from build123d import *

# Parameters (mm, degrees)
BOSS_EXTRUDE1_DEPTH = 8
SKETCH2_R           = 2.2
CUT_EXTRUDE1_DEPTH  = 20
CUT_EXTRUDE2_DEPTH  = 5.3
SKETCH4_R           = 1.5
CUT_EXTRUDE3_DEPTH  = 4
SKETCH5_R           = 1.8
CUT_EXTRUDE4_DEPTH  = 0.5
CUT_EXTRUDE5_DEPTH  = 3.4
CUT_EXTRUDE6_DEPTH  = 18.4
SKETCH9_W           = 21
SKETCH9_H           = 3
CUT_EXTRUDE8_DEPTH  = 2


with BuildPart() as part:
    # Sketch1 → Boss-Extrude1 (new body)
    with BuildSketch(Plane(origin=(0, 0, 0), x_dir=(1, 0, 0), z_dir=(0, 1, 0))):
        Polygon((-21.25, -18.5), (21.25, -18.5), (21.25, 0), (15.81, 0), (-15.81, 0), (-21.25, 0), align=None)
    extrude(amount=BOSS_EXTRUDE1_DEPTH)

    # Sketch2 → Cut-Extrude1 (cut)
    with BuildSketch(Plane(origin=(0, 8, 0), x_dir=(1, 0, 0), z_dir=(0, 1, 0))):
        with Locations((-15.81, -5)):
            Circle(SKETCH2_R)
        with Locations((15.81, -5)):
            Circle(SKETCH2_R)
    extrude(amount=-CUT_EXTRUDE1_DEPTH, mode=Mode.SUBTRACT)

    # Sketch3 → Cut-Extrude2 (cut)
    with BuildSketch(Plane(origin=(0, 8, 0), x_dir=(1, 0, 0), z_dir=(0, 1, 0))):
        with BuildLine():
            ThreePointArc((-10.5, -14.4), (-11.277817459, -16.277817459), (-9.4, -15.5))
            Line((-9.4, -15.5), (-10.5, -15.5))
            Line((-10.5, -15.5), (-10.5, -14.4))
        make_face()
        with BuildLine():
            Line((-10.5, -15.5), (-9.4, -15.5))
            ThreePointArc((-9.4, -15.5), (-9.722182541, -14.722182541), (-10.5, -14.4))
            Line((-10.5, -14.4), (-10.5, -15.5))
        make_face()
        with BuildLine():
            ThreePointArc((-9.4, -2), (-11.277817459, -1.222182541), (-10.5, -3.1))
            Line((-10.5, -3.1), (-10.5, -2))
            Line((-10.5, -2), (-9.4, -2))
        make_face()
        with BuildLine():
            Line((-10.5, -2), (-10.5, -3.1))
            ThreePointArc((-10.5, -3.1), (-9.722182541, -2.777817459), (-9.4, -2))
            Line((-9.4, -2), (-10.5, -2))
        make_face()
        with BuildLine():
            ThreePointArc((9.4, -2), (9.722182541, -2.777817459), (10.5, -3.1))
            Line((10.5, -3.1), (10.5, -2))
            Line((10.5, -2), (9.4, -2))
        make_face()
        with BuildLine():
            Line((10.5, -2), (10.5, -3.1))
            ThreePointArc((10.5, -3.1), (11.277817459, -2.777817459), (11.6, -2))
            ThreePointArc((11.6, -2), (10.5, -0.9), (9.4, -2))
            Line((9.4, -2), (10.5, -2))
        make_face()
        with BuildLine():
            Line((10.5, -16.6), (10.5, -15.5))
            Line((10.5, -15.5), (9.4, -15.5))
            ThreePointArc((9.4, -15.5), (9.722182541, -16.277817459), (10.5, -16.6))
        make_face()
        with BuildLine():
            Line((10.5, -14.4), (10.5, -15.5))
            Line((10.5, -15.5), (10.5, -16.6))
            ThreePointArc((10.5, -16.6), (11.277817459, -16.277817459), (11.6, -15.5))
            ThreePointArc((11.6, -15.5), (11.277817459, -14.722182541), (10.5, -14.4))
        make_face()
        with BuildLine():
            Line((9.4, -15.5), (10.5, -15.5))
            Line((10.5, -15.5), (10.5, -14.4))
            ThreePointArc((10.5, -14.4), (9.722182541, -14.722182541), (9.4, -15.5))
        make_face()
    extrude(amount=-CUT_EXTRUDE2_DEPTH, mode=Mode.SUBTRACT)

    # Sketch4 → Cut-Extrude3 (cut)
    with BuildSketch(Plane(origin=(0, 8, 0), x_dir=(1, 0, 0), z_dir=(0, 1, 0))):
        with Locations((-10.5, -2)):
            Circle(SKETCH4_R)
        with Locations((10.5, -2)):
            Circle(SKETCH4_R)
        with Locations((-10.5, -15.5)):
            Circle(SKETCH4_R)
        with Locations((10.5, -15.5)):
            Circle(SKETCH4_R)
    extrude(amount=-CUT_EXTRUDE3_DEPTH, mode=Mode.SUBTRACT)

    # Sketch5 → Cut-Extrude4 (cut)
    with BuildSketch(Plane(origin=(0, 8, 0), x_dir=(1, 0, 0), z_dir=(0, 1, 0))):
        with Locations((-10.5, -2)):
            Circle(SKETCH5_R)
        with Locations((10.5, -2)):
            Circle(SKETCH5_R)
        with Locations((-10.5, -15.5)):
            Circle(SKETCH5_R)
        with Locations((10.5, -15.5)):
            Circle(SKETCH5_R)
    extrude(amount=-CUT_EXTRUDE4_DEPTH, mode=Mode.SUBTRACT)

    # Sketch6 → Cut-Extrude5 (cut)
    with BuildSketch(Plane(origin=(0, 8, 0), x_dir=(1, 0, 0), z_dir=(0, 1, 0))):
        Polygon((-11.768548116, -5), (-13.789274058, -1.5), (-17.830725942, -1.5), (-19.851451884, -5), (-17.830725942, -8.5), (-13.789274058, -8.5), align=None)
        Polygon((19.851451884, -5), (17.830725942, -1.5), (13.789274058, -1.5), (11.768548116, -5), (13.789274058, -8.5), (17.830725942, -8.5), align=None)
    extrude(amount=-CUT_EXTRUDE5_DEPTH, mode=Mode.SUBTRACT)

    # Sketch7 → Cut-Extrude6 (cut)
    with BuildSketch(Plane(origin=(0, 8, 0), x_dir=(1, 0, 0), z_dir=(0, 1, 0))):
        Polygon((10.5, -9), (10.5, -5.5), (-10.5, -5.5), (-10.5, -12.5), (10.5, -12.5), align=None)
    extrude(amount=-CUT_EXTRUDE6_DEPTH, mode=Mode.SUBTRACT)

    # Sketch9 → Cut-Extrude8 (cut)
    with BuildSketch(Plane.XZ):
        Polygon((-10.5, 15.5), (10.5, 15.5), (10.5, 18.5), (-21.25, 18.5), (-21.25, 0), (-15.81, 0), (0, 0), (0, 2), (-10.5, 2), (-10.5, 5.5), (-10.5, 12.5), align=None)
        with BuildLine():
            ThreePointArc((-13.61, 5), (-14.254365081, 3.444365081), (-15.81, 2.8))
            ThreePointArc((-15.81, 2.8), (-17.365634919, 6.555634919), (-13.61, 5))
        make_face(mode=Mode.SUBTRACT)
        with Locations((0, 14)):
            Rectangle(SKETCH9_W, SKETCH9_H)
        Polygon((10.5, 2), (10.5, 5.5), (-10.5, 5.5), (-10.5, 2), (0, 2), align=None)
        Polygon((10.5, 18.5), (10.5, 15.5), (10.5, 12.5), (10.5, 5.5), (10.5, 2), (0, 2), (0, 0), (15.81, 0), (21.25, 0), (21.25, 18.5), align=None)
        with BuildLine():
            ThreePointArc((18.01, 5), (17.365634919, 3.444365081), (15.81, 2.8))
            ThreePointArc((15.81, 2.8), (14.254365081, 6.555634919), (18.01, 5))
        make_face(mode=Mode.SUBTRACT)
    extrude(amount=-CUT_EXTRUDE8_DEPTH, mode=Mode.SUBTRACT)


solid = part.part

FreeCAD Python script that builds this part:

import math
import FreeCAD as App
import Part
import Sketcher

V = App.Vector
Q = App.Units.Quantity


def add_polygon(sketch, points):
    """Adds a closed chain of lines whose ends are joined by coincident constraints."""
    first, n = sketch.GeometryCount, len(points)
    for a, b in zip(points, points[1:] + points[:1]):
        sketch.addGeometry(Part.LineSegment(App.Vector(*a, 0), App.Vector(*b, 0)), False)
    for i in range(n):
        sketch.addConstraint(Sketcher.Constraint("Coincident", first + i, 2, first + (i + 1) % n, 1))

doc = App.newDocument("Part")
params = doc.addObject("Spreadsheet::Sheet", "Params")
for row, (alias, value) in enumerate([
    ("sketch1_width", "42.5 mm"),
    ("sketch1_height", "18.5 mm"),
    ("pad1_length", "8 mm"),
    ("sketch2_diameter", "4.4 mm"),
    ("pocket1_length", "20 mm"),
    ("sketch3_radius", "1.1 mm"),
    ("pocket2_length", "5.3 mm"),
    ("sketch4_diameter", "3 mm"),
    ("pocket3_length", "4 mm"),
    ("sketch5_diameter", "3.6 mm"),
    ("pocket4_length", "0.5 mm"),
    ("pocket5_length", "3.4 mm"),
    ("sketch7_width", "21 mm"),
    ("sketch7_height", "7 mm"),
    ("pocket6_length", "18.4 mm"),
    ("sketch8_radius", "2.2 mm"),
    ("sketch8_width", "21 mm"),
    ("sketch8_height", "7 mm"),
    ("sketch8_width2", "42.5 mm"),
    ("sketch8_height2", "18.5 mm"),
    ("pocket7_length", "2 mm"),
], start=1):
    params.set(f"A{row}", alias)
    params.set(f"B{row}", "=" + value)
    params.setAlias(f"B{row}", alias)

body = doc.addObject("PartDesign::Body", "Body")

sketch1 = body.newObject("Sketcher::SketchObject", "Sketch")
sketch1.AttachmentSupport = (doc.getObject("XZ_Plane"), [""])
sketch1.MapMode = "FlatFace"
add_polygon(sketch1, [(-21.25, 18.5), (21.25, 18.5), (21.25, 0), (-21.25, 0)])
sketch1.addConstraint([
    Sketcher.Constraint("Horizontal", 0),
    Sketcher.Constraint("Vertical", 1),
    Sketcher.Constraint("Horizontal", 2),
    Sketcher.Constraint("Vertical", 3),
    Sketcher.Constraint("Symmetric", 1, 2, 2, 2, -1, 1),
    Sketcher.Constraint("DistanceX", 0, 1, 0, 2, Q("42.5 mm")),
    Sketcher.Constraint("DistanceY", 1, 2, 1, 1, Q("18.5 mm")),
])
sketch1.setExpression("Constraints[9]", "Params.sketch1_width")
sketch1.setExpression("Constraints[10]", "Params.sketch1_height")
pad1 = body.newObject("PartDesign::Pad", "Pad")
pad1.Profile = sketch1
pad1.setExpression("Length", "Params.pad1_length")
pad1.Reversed = True

sketch2 = body.newObject("Sketcher::SketchObject", "Sketch001")
sketch2.AttachmentSupport = (doc.getObject("XZ_Plane"), [""])
sketch2.MapMode = "FlatFace"
sketch2.AttachmentOffset = App.Placement(V(0, 0, -8), App.Rotation())
sketch2.addGeometry([
    Part.Circle(V(-15.81, 5, 0), V(0, 0, 1), 2.2),
    Part.Circle(V(15.81, 5, 0), V(0, 0, 1), 2.2),
], False)
sketch2.addConstraint([
    Sketcher.Constraint("Equal", 0, 1),
    Sketcher.Constraint("Symmetric", 0, 3, 1, 3, -2),
    Sketcher.Constraint("Diameter", 0, Q("4.4 mm")),
    Sketcher.Constraint("DistanceY", -1, 1, 0, 3, Q("5 mm")),
    Sketcher.Constraint("DistanceX", 0, 3, -1, 1, Q("15.81 mm")),
])
sketch2.setExpression("Constraints[2]", "Params.sketch2_diameter")
pocket1 = body.newObject("PartDesign::Pocket", "Pocket")
pocket1.Profile = sketch2
pocket1.setExpression("Length", "Params.pocket1_length")
pocket1.Reversed = True

sketch3 = body.newObject("Sketcher::SketchObject", "Sketch002")
sketch3.AttachmentSupport = (doc.getObject("XZ_Plane"), [""])
sketch3.MapMode = "FlatFace"
sketch3.AttachmentOffset = App.Placement(V(0, 0, -8), App.Rotation())
sketch3.addGeometry([
    Part.ArcOfCircle(Part.Circle(V(-10.5, 15.5, 0), V(0, 0, 1), 1.1), math.radians(0), math.radians(270)),
    Part.ArcOfCircle(Part.Circle(V(-10.5, 15.5, 0), V(0, 0, 1), 1.1), math.radians(-90), math.radians(0)),
    Part.ArcOfCircle(Part.Circle(V(-10.5, 2, 0), V(0, 0, 1), 1.1), math.radians(90), math.radians(360)),
    Part.ArcOfCircle(Part.Circle(V(-10.5, 2, 0), V(0, 0, 1), 1.1), math.radians(0), math.radians(90)),
    Part.ArcOfCircle(Part.Circle(V(10.5, 2, 0), V(0, 0, 1), 1.1), math.radians(90), math.radians(180)),
    Part.ArcOfCircle(Part.Circle(V(10.5, 2, 0), V(0, 0, 1), 1.1), math.radians(0), math.radians(90)),
    Part.ArcOfCircle(Part.Circle(V(10.5, 2, 0), V(0, 0, 1), 1.1), math.radians(180), math.radians(360)),
    Part.ArcOfCircle(Part.Circle(V(10.5, 15.5, 0), V(0, 0, 1), 1.1), math.radians(90), math.radians(180)),
    Part.ArcOfCircle(Part.Circle(V(10.5, 15.5, 0), V(0, 0, 1), 1.1), math.radians(0), math.radians(90)),
    Part.ArcOfCircle(Part.Circle(V(10.5, 15.5, 0), V(0, 0, 1), 1.1), math.radians(-90), math.radians(0)),
    Part.ArcOfCircle(Part.Circle(V(10.5, 15.5, 0), V(0, 0, 1), 1.1), math.radians(-180), math.radians(-90)),
], False)
sketch3.addConstraint([
    Sketcher.Constraint("Tangent", 0, 1, 1, 2),
    Sketcher.Constraint("Coincident", 1, 1, 0, 2),
    Sketcher.Constraint("Tangent", 2, 1, 3, 2),
    Sketcher.Constraint("Coincident", 3, 1, 2, 2),
    Sketcher.Constraint("Tangent", 4, 1, 5, 2),
    Sketcher.Constraint("Tangent", 5, 1, 6, 2),
    Sketcher.Constraint("Tangent", 6, 1, 4, 2),
    Sketcher.Constraint("Tangent", 7, 1, 8, 2),
    Sketcher.Constraint("Tangent", 8, 1, 9, 2),
    Sketcher.Constraint("Tangent", 9, 1, 10, 2),
    Sketcher.Constraint("Tangent", 10, 1, 7, 2),
    Sketcher.Constraint("Equal", 1, 2),
    Sketcher.Constraint("Equal", 3, 4),
    Sketcher.Constraint("Equal", 6, 7),
    Sketcher.Constraint("Equal", 7, 8),
    Sketcher.Constraint("Symmetric", 2, 3, 4, 3, -2),
    Sketcher.Constraint("Symmetric", 0, 3, 7, 3, -2),
    Sketcher.Constraint("Horizontal", 10, 3, 0, 1),
    Sketcher.Constraint("Horizontal", 6, 3, 3, 1),
    Sketcher.Constraint("Horizontal", 3, 1, 5, 1),
    Sketcher.Constraint("Horizontal", 5, 1, 6, 1),
    Sketcher.Constraint("Horizontal", 0, 1, 8, 1),
    Sketcher.Constraint("Horizontal", 8, 1, 10, 1),
    Sketcher.Constraint("Vertical", 1, 3, 2, 3),
    Sketcher.Constraint("Vertical", 3, 3, 1, 1),
    Sketcher.Constraint("Vertical", 1, 1, 2, 1),
    Sketcher.Constraint("Vertical", 10, 3, 4, 1),
    Sketcher.Constraint("Vertical", 4, 1, 7, 1),
    Sketcher.Constraint("Vertical", 7, 1, 9, 1),
    Sketcher.Constraint("Radius", 0, Q("1.1 mm")),
    Sketcher.Constraint("DistanceY", -1, 1, 2, 3, Q("2 mm")),
    Sketcher.Constraint("DistanceX", 2, 3, 4, 3, Q("21 mm")),
    Sketcher.Constraint("DistanceY", -1, 1, 0, 3, Q("15.5 mm")),
])
sketch3.setExpression("Constraints[29]", "Params.sketch3_radius")
pocket2 = body.newObject("PartDesign::Pocket", "Pocket001")
pocket2.Profile = sketch3
pocket2.setExpression("Length", "Params.pocket2_length")
pocket2.Reversed = True

sketch4 = body.newObject("Sketcher::SketchObject", "Sketch003")
sketch4.AttachmentSupport = (doc.getObject("XZ_Plane"), [""])
sketch4.MapMode = "FlatFace"
sketch4.AttachmentOffset = App.Placement(V(0, 0, -8), App.Rotation())
sketch4.addGeometry([
    Part.Circle(V(-10.5, 2, 0), V(0, 0, 1), 1.5),
    Part.Circle(V(10.5, 2, 0), V(0, 0, 1), 1.5),
    Part.Circle(V(-10.5, 15.5, 0), V(0, 0, 1), 1.5),
    Part.Circle(V(10.5, 15.5, 0), V(0, 0, 1), 1.5),
], False)
sketch4.addConstraint([
    Sketcher.Constraint("Equal", 0, 1),
    Sketcher.Constraint("Equal", 1, 2),
    Sketcher.Constraint("Equal", 2, 3),
    Sketcher.Constraint("Symmetric", 0, 3, 1, 3, -2),
    Sketcher.Constraint("Symmetric", 2, 3, 3, 3, -2),
    Sketcher.Constraint("Vertical", 0, 3, 2, 3),
    Sketcher.Constraint("Diameter", 0, Q("3 mm")),
    Sketcher.Constraint("DistanceY", -1, 1, 0, 3, Q("2 mm")),
    Sketcher.Constraint("DistanceX", 0, 3, 1, 3, Q("21 mm")),
    Sketcher.Constraint("DistanceY", -1, 1, 2, 3, Q("15.5 mm")),
])
sketch4.setExpression("Constraints[6]", "Params.sketch4_diameter")
pocket3 = body.newObject("PartDesign::Pocket", "Pocket002")
pocket3.Profile = sketch4
pocket3.setExpression("Length", "Params.pocket3_length")
pocket3.Reversed = True

sketch5 = body.newObject("Sketcher::SketchObject", "Sketch004")
sketch5.AttachmentSupport = (doc.getObject("XZ_Plane"), [""])
sketch5.MapMode = "FlatFace"
sketch5.AttachmentOffset = App.Placement(V(0, 0, -8), App.Rotation())
sketch5.addGeometry([
    Part.Circle(V(-10.5, 2, 0), V(0, 0, 1), 1.8),
    Part.Circle(V(10.5, 2, 0), V(0, 0, 1), 1.8),
    Part.Circle(V(-10.5, 15.5, 0), V(0, 0, 1), 1.8),
    Part.Circle(V(10.5, 15.5, 0), V(0, 0, 1), 1.8),
], False)
sketch5.addConstraint([
    Sketcher.Constraint("Equal", 0, 1),
    Sketcher.Constraint("Equal", 1, 2),
    Sketcher.Constraint("Equal", 2, 3),
    Sketcher.Constraint("Symmetric", 0, 3, 1, 3, -2),
    Sketcher.Constraint("Symmetric", 2, 3, 3, 3, -2),
    Sketcher.Constraint("Vertical", 0, 3, 2, 3),
    Sketcher.Constraint("Diameter", 0, Q("3.6 mm")),
    Sketcher.Constraint("DistanceY", -1, 1, 0, 3, Q("2 mm")),
    Sketcher.Constraint("DistanceX", 0, 3, 1, 3, Q("21 mm")),
    Sketcher.Constraint("DistanceY", -1, 1, 2, 3, Q("15.5 mm")),
])
sketch5.setExpression("Constraints[6]", "Params.sketch5_diameter")
pocket4 = body.newObject("PartDesign::Pocket", "Pocket003")
pocket4.Profile = sketch5
pocket4.setExpression("Length", "Params.pocket4_length")
pocket4.Reversed = True

sketch6 = body.newObject("Sketcher::SketchObject", "Sketch005")
sketch6.AttachmentSupport = (doc.getObject("XZ_Plane"), [""])
sketch6.MapMode = "FlatFace"
sketch6.AttachmentOffset = App.Placement(V(0, 0, -8), App.Rotation())
add_polygon(sketch6, [(-11.768548, 5), (-13.789274, 1.5), (-17.830726, 1.5), (-19.851452, 5), (-17.830726, 8.5), (-13.789274, 8.5)])
add_polygon(sketch6, [(19.851452, 5), (17.830726, 1.5), (13.789274, 1.5), (11.768548, 5), (13.789274, 8.5), (17.830726, 8.5)])
sketch6.addConstraint([
    Sketcher.Constraint("Horizontal", 1),
    Sketcher.Constraint("Horizontal", 4),
    Sketcher.Constraint("Horizontal", 7),
    Sketcher.Constraint("Horizontal", 10),
    Sketcher.Constraint("Symmetric", 1, 2, 6, 2, -2),
    Sketcher.Constraint("Symmetric", 5, 2, 8, 2, -2),
    Sketcher.Constraint("Symmetric", 4, 2, 9, 2, -2),
    Sketcher.Constraint("Symmetric", 2, 2, 11, 2, -2),
    Sketcher.Constraint("Parallel", 0, 3),
    Sketcher.Constraint("Parallel", 2, 5),
    Sketcher.Constraint("Parallel", 3, 6),
    Sketcher.Constraint("Parallel", 5, 8),
    Sketcher.Constraint("Parallel", 8, 11),
    Sketcher.Constraint("Horizontal", 2, 2, 5, 2),
    Sketcher.Constraint("Vertical", 1, 2, 3, 2),
    Sketcher.Constraint("Angle", 0, Q("-120 deg")),
    Sketcher.Constraint("DistanceY", -1, 1, 2, 2, Q("5 mm")),
    Sketcher.Constraint("DistanceY", 1, 2, 3, 2, Q("7 mm")),
    Sketcher.Constraint("DistanceX", 0, 2, 6, 2, Q("31.62 mm")),
    Sketcher.Constraint("DistanceX", 1, 2, 1, 1, Q("4.041452 mm")),
])
pocket5 = body.newObject("PartDesign::Pocket", "Pocket004")
pocket5.Profile = sketch6
pocket5.setExpression("Length", "Params.pocket5_length")
pocket5.Reversed = True

sketch7 = body.newObject("Sketcher::SketchObject", "Sketch006")
sketch7.AttachmentSupport = (doc.getObject("XZ_Plane"), [""])
sketch7.MapMode = "FlatFace"
sketch7.AttachmentOffset = App.Placement(V(0, 0, -8), App.Rotation())
add_polygon(sketch7, [(10.5, 5.5), (-10.5, 5.5), (-10.5, 12.5), (10.5, 12.5)])
sketch7.addConstraint([
    Sketcher.Constraint("Horizontal", 0),
    Sketcher.Constraint("Vertical", 1),
    Sketcher.Constraint("Horizontal", 2),
    Sketcher.Constraint("Vertical", 3),
    Sketcher.Constraint("DistanceX", 0, 2, 0, 1, Q("21 mm")),
    Sketcher.Constraint("DistanceY", 1, 1, 1, 2, Q("7 mm")),
    Sketcher.Constraint("DistanceX", 0, 2, -1, 1, Q("10.5 mm")),
    Sketcher.Constraint("DistanceY", -1, 1, 0, 2, Q("5.5 mm")),
])
sketch7.setExpression("Constraints[8]", "Params.sketch7_width")
sketch7.setExpression("Constraints[9]", "Params.sketch7_height")
pocket6 = body.newObject("PartDesign::Pocket", "Pocket005")
pocket6.Profile = sketch7
pocket6.setExpression("Length", "Params.pocket6_length")
pocket6.Reversed = True

sketch8 = body.newObject("Sketcher::SketchObject", "Sketch007")
sketch8.AttachmentSupport = (doc.getObject("XZ_Plane"), [""])
sketch8.MapMode = "FlatFace"
add_polygon(sketch8, [(-21.25, 18.5), (-21.25, 0), (21.25, 0), (21.25, 18.5)])
sketch8.addGeometry(Part.ArcOfCircle(Part.Circle(V(-15.81, 5, 0), V(0, 0, 1), 2.2), math.radians(0), math.radians(270)), False)
sketch8.addGeometry(Part.ArcOfCircle(Part.Circle(V(-15.81, 5, 0), V(0, 0, 1), 2.2), math.radians(-90), math.radians(0)), False)
sketch8.addGeometry(Part.ArcOfCircle(Part.Circle(V(15.81, 5, 0), V(0, 0, 1), 2.2), math.radians(0), math.radians(270)), False)
sketch8.addGeometry(Part.ArcOfCircle(Part.Circle(V(15.81, 5, 0), V(0, 0, 1), 2.2), math.radians(-90), math.radians(0)), False)
add_polygon(sketch8, [(-10.5, 5.5), (-10.5, 12.5), (10.5, 12.5), (10.5, 5.5)])
sketch8.addConstraint([
    Sketcher.Constraint("Tangent", 4, 1, 5, 2),
    Sketcher.Constraint("Coincident", 5, 1, 4, 2),
    Sketcher.Constraint("Tangent", 6, 1, 7, 2),
    Sketcher.Constraint("Coincident", 7, 1, 6, 2),
    Sketcher.Constraint("Vertical", 0),
    Sketcher.Constraint("Horizontal", 1),
    Sketcher.Constraint("Vertical", 2),
    Sketcher.Constraint("Horizontal", 3),
    Sketcher.Constraint("Vertical", 8),
    Sketcher.Constraint("Horizontal", 9),
    Sketcher.Constraint("Vertical", 10),
    Sketcher.Constraint("Horizontal", 11),
    Sketcher.Constraint("Equal", 5, 6),
    Sketcher.Constraint("Symmetric", 0, 2, 1, 2, -1, 1),
    Sketcher.Constraint("Symmetric", 4, 3, 6, 3, -2),
    Sketcher.Constraint("Horizontal", 7, 3, 4, 1),
    Sketcher.Constraint("Horizontal", 4, 1, 6, 1),
    Sketcher.Constraint("Vertical", 4, 3, 5, 1),
    Sketcher.Constraint("Vertical", 6, 3, 7, 1),
    Sketcher.Constraint("Radius", 4, Q("2.2 mm")),
    Sketcher.Constraint("DistanceX", 9, 1, 9, 2, Q("21 mm")),
    Sketcher.Constraint("DistanceY", 8, 1, 8, 2, Q("7 mm")),
    Sketcher.Constraint("DistanceX", 1, 1, 1, 2, Q("42.5 mm")),
    Sketcher.Constraint("DistanceY", 0, 2, 0, 1, Q("18.5 mm")),
    Sketcher.Constraint("DistanceY", -1, 1, 4, 3, Q("5 mm")),
    Sketcher.Constraint("DistanceY", 8, 2, 3, 2, Q("6 mm")),
    Sketcher.Constraint("DistanceX", 8, 2, -1, 1, Q("10.5 mm")),
    Sketcher.Constraint("DistanceX", 4, 3, -1, 1, Q("15.81 mm")),
])
sketch8.setExpression("Constraints[27]", "Params.sketch8_radius")
sketch8.setExpression("Constraints[28]", "Params.sketch8_width")
sketch8.setExpression("Constraints[29]", "Params.sketch8_height")
sketch8.setExpression("Constraints[30]", "Params.sketch8_width2")
sketch8.setExpression("Constraints[31]", "Params.sketch8_height2")
pocket7 = body.newObject("PartDesign::Pocket", "Pocket006")
pocket7.Profile = sketch8
pocket7.setExpression("Length", "Params.pocket7_length")

doc.recompute()
